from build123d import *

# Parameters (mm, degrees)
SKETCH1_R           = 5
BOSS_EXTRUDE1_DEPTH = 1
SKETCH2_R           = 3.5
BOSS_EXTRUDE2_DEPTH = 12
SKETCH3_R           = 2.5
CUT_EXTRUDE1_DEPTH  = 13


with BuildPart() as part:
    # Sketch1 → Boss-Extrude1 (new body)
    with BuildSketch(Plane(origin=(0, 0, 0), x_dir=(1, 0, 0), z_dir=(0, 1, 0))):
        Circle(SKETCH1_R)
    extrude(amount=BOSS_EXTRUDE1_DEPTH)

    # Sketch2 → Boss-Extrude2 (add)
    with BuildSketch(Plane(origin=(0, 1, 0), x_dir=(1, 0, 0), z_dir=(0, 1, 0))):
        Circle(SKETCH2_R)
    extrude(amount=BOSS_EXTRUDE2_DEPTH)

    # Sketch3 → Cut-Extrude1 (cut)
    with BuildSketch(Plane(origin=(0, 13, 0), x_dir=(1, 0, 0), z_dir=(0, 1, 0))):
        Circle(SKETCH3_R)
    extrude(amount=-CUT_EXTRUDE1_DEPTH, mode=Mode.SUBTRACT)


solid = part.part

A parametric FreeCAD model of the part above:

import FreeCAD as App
import Part
import Sketcher
from FreeCAD import Vector
Q = App.Units.Quantity

doc = App.newDocument("Part")
body = doc.addObject("PartDesign::Body", "Body")

sketch1 = body.newObject("Sketcher::SketchObject", "Sketch")
sketch1.AttachmentSupport = (doc.getObject("XZ_Plane"), [""])
sketch1.MapMode = "FlatFace"
sketch1.addGeometry(Part.Circle(Vector(0, 0, 0), Vector(0, 0, 1), 5), False)
sketch1.addConstraint([
    Sketcher.Constraint("Coincident", 0, 3, -1, 1),
    Sketcher.Constraint("Diameter", 0, Q("10 mm")),
])
pad1 = body.newObject("PartDesign::Pad", "Pad")
pad1.Profile = sketch1
pad1.Length = 1
pad1.Reversed = True

sketch2 = body.newObject("Sketcher::SketchObject", "Sketch001")
sketch2.AttachmentSupport = (doc.getObject("XZ_Plane"), [""])
sketch2.MapMode = "FlatFace"
sketch2.AttachmentOffset = App.Placement(Vector(0, 0, -1), App.Rotation())
sketch2.addGeometry(Part.Circle(Vector(0, 0, 0), Vector(0, 0, 1), 3.5), False)
sketch2.addConstraint([
    Sketcher.Constraint("Coincident", 0, 3, -1, 1),
    Sketcher.Constraint("Diameter", 0, Q("7 mm")),
])
pad2 = body.newObject("PartDesign::Pad", "Pad001")
pad2.Profile = sketch2
pad2.Length = 12
pad2.Reversed = True

sketch3 = body.newObject("Sketcher::SketchObject", "Sketch002")
sketch3.AttachmentSupport = (doc.getObject("XZ_Plane"), [""])
sketch3.MapMode = "FlatFace"
sketch3.AttachmentOffset = App.Placement(Vector(0, 0, -13), App.Rotation())
sketch3.addGeometry(Part.Circle(Vector(0, 0, 0), Vector(0, 0, 1), 2.5), False)
sketch3.addConstraint([
    Sketcher.Constraint("Coincident", 0, 3, -1, 1),
    Sketcher.Constraint("Diameter", 0, Q("5 mm")),
])
pocket1 = body.newObject("PartDesign::Pocket", "Pocket")
pocket1.Profile = sketch3
pocket1.Length = 13
pocket1.Reversed = True

doc.recompute()
